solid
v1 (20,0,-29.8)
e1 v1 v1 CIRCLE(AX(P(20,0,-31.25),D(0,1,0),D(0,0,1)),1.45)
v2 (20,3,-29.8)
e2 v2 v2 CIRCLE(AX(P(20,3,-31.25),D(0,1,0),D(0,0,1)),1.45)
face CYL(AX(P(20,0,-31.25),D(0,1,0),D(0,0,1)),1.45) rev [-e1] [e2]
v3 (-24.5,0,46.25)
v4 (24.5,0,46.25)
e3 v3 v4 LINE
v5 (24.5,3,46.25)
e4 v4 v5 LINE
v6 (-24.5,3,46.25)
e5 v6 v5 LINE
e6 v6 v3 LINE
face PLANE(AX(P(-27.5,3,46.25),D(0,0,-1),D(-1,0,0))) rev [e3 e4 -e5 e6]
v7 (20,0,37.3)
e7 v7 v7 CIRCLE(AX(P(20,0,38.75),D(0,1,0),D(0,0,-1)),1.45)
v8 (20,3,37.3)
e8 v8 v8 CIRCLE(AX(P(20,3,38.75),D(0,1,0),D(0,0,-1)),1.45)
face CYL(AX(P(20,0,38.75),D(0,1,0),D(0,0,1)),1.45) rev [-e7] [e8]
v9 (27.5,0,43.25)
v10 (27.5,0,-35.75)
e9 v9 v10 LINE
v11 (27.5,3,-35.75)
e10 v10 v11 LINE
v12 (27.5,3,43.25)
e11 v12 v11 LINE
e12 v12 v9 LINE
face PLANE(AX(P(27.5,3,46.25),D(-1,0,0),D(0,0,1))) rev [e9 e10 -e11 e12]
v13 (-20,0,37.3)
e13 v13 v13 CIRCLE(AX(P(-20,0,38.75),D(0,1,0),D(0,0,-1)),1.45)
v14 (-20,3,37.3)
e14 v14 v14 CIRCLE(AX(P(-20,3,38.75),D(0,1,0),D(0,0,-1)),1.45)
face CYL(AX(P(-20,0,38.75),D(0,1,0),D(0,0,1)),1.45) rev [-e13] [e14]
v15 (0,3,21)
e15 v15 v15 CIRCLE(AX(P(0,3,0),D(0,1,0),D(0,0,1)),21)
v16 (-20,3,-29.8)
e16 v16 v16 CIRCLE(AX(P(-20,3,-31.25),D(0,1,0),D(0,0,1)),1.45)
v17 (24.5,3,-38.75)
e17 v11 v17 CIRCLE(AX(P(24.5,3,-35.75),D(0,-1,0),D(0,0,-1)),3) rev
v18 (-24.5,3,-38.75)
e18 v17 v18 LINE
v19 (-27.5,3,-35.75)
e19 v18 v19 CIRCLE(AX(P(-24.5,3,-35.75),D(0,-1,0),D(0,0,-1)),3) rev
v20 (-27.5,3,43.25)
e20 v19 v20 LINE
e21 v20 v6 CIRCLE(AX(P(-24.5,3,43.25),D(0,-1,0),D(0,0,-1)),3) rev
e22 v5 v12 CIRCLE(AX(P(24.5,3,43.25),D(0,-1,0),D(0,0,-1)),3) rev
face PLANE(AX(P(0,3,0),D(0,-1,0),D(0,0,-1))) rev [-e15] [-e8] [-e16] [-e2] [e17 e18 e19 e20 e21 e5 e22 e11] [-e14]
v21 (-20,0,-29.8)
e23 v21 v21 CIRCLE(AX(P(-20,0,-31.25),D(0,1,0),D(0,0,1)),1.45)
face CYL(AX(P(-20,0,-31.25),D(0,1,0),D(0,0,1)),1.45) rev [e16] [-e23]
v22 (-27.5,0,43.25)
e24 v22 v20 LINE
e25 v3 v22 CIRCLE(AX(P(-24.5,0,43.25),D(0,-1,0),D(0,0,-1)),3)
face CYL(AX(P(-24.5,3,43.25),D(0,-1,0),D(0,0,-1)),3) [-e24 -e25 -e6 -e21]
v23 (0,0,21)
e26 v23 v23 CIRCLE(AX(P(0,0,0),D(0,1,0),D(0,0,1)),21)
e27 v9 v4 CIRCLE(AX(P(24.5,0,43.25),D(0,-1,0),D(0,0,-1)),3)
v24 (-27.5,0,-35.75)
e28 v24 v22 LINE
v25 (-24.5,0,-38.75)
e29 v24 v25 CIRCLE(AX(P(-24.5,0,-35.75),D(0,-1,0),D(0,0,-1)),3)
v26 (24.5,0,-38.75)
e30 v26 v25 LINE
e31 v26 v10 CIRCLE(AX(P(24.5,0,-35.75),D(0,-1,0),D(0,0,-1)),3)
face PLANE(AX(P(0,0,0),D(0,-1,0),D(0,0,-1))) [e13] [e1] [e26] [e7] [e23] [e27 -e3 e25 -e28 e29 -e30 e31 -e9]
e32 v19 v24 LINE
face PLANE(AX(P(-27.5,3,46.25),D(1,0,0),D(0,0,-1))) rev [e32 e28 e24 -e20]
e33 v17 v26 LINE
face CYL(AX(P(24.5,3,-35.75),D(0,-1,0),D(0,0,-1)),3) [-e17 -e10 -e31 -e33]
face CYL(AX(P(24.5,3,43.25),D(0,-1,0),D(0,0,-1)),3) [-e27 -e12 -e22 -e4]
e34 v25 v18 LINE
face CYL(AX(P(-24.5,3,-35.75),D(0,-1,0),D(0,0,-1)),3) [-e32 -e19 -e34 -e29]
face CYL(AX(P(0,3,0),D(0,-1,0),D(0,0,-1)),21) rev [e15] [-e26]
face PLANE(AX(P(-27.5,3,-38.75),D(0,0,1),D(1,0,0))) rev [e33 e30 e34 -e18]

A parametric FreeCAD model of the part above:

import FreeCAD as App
import Part
import Sketcher
Q = App.Units.Quantity


def edges_at(feature, points):
    """Names of the edges that pass closest to the given points."""
    edges = feature.Shape.Edges
    near = lambda p: min(range(len(edges)), key=lambda i: edges[i].distToShape(Part.Vertex(*p))[0])
    return sorted({f"Edge{near(p) + 1}" for p in points})

doc = App.newDocument("Part")
body = doc.addObject("PartDesign::Body", "Body")

# Sketch on XZ plane
sketch1 = doc.addObject("Sketcher::SketchObject", "Sketch")
body.addObject(sketch1)
sketch1.AttachmentSupport = (doc.XZ_Plane, [""])
sketch1.MapMode = "FlatFace"
sketch1.addGeometry(Part.LineSegment(App.Vector(-28, -39, 0), App.Vector(-28, 46, 0)), False)
sketch1.addGeometry(Part.LineSegment(App.Vector(-28, 46, 0), App.Vector(28, 46, 0)), False)
sketch1.addGeometry(Part.LineSegment(App.Vector(28, 46, 0), App.Vector(28, -39, 0)), False)
sketch1.addGeometry(Part.LineSegment(App.Vector(28, -39, 0), App.Vector(-28, -39, 0)), False)
sketch1.addGeometry(Part.Circle(App.Vector(0, 0, 0), App.Vector(0, 0, 1), 21), False)
sketch1.addConstraint(Sketcher.Constraint("Coincident", 0, 2, 1, 1))
sketch1.addConstraint(Sketcher.Constraint("Coincident", 1, 2, 2, 1))
sketch1.addConstraint(Sketcher.Constraint("Coincident", 2, 2, 3, 1))
sketch1.addConstraint(Sketcher.Constraint("Coincident", 3, 2, 0, 1))
sketch1.addConstraint(Sketcher.Constraint("Vertical", 0))
sketch1.addConstraint(Sketcher.Constraint("Horizontal", 1))
sketch1.addConstraint(Sketcher.Constraint("Vertical", 2))
sketch1.addConstraint(Sketcher.Constraint("Horizontal", 3))
sketch1.addConstraint(Sketcher.Constraint("Coincident", 4, 3, -1, 1))
sketch1.addConstraint(Sketcher.Constraint("Diameter", 4, Q("42 mm")))
sketch1.addConstraint(Sketcher.Constraint("DistanceX", 1, 1, 1, 2, Q("55 mm")))
sketch1.addConstraint(Sketcher.Constraint("DistanceY", 0, 1, 0, 2, Q("85 mm")))
sketch1.addConstraint(Sketcher.Constraint("DistanceX", 0, 2, -1, 1, Q("27.5 mm")))
sketch1.addConstraint(Sketcher.Constraint("DistanceY", -1, 1, 0, 2, Q("46.25 mm")))
pad1 = doc.addObject("PartDesign::Pad", "Pad")
body.addObject(pad1)
pad1.Profile = sketch1
pad1.Length = 3
pad1.Reversed = True

# Sketch on XZ plane
sketch2 = doc.addObject("Sketcher::SketchObject", "Sketch001")
body.addObject(sketch2)
sketch2.AttachmentSupport = (doc.XZ_Plane, [""])
sketch2.MapMode = "FlatFace"
sketch2.AttachmentOffset = App.Placement(App.Vector(0, 0, -3), App.Rotation())
sketch2.addGeometry(Part.Circle(App.Vector(-20, -31.2, 0), App.Vector(0, 0, 1), 1.4), False)
sketch2.addGeometry(Part.Circle(App.Vector(20, -31.2, 0), App.Vector(0, 0, 1), 1.4), False)
sketch2.addGeometry(Part.Circle(App.Vector(-20, 38.8, 0), App.Vector(0, 0, 1), 1.4), False)
sketch2.addGeometry(Part.Circle(App.Vector(20, 38.8, 0), App.Vector(0, 0, 1), 1.4), False)
sketch2.addConstraint(Sketcher.Constraint("Equal", 0, 1))
sketch2.addConstraint(Sketcher.Constraint("Equal", 1, 2))
sketch2.addConstraint(Sketcher.Constraint("Equal", 2, 3))
sketch2.addConstraint(Sketcher.Constraint("Symmetric", 0, 3, 1, 3, -2))
sketch2.addConstraint(Sketcher.Constraint("Symmetric", 2, 3, 3, 3, -2))
sketch2.addConstraint(Sketcher.Constraint("Vertical", 0, 3, 2, 3))
sketch2.addConstraint(Sketcher.Constraint("Diameter", 0, Q("2.9 mm")))
sketch2.addConstraint(Sketcher.Constraint("DistanceX", 0, 3, -1, 1, Q("20 mm")))
sketch2.addConstraint(Sketcher.Constraint("DistanceY", 0, 3, 2, 3, Q("70 mm")))
sketch2.addConstraint(Sketcher.Constraint("DistanceY", 0, 3, -1, 1, Q("31.25 mm")))
pocket1 = doc.addObject("PartDesign::Pocket", "Pocket")
body.addObject(pocket1)
pocket1.Profile = sketch2
pocket1.Length = 3
pocket1.Reversed = True
doc.recompute()

fillet = doc.addObject("PartDesign::Fillet", "Fillet")
body.addObject(fillet)
fillet.Base = (pocket1, edges_at(pocket1, [
    (27.5, 1.5, 46.25),
    (-27.5, 1.5, 46.25),
    (-27.5, 1.5, -38.75),
    (27.5, 1.5, -38.75),
]))
fillet.Radius = 3

doc.recompute()
